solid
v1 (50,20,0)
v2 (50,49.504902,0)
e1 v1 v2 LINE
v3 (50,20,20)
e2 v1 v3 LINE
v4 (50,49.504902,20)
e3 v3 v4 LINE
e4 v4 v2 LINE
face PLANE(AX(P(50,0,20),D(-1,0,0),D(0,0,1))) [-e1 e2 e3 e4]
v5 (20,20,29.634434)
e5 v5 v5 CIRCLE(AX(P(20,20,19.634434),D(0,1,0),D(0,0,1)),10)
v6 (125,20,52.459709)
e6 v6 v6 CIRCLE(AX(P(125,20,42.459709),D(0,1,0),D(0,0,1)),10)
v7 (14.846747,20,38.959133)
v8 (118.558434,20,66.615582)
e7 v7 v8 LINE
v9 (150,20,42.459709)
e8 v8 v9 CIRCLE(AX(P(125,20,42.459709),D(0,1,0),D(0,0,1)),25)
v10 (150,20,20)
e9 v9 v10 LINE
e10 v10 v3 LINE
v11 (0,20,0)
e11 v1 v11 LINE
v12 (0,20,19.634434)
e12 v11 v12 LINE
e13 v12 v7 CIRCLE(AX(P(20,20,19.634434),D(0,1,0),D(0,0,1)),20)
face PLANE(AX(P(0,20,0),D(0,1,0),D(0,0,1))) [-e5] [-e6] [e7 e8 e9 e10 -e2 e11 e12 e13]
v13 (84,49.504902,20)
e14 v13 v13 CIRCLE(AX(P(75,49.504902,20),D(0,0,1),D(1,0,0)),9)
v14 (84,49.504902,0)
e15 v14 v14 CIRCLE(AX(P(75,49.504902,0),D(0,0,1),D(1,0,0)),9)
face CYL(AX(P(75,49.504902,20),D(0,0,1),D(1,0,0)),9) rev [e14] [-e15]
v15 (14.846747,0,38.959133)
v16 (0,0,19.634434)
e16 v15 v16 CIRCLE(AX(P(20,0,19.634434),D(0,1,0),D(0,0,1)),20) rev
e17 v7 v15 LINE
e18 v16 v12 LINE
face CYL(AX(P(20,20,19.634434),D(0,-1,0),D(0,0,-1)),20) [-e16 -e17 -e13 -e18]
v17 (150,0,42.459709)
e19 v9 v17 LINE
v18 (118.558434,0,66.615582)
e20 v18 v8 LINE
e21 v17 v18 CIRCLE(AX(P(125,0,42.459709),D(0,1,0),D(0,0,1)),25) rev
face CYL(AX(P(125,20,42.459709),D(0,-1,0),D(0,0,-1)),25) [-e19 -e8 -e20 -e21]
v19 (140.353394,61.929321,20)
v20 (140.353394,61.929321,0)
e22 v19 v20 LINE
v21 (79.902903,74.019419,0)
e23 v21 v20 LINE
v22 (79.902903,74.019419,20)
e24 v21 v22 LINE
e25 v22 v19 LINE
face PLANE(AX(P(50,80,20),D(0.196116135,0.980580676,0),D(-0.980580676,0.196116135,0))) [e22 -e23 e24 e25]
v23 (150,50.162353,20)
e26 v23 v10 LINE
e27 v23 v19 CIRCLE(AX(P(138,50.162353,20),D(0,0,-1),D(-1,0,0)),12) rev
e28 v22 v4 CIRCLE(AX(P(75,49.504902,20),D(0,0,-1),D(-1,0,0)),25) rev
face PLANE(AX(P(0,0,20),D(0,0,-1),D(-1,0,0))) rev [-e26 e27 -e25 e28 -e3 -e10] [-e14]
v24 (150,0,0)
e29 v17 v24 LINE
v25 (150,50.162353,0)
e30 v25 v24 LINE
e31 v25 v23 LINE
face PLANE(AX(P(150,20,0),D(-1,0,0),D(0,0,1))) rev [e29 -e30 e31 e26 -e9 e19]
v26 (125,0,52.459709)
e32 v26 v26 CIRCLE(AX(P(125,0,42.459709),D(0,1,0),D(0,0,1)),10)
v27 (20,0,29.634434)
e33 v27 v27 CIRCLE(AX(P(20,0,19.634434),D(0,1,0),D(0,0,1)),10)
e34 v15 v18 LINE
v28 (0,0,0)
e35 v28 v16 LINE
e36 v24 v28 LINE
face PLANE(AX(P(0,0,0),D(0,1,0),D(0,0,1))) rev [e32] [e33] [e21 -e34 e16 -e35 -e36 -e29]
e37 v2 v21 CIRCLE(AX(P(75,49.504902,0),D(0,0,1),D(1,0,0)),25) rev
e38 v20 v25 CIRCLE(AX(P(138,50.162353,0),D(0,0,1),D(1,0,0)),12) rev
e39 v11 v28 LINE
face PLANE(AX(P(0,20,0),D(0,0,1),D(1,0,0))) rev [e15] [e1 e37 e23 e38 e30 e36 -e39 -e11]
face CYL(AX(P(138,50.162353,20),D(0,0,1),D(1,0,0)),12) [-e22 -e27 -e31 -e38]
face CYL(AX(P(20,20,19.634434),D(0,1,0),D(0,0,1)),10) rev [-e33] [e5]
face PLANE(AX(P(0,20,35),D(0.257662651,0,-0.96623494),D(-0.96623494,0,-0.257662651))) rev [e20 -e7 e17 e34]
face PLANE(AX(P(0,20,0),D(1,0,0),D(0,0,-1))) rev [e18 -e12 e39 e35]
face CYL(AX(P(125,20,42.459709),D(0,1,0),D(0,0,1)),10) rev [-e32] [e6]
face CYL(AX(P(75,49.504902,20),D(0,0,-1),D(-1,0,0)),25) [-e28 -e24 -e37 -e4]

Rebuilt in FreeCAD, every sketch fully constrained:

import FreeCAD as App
import Part
import Sketcher

V = App.Vector
Q = App.Units.Quantity


def edges_at(feature, points):
    """Names of the edges that pass closest to the given points."""
    edges = feature.Shape.Edges
    near = lambda p: min(range(len(edges)), key=lambda i: edges[i].distToShape(Part.Vertex(*p))[0])
    return sorted({f"Edge{near(p) + 1}" for p in points})

doc = App.newDocument("Part")
body = doc.addObject("PartDesign::Body", "Body")

# Sketch on XZ plane
sketch1 = doc.addObject("Sketcher::SketchObject", "Sketch")
body.addObject(sketch1)
sketch1.AttachmentSupport = (doc.XZ_Plane, [""])
sketch1.MapMode = "FlatFace"
sketch1.addGeometry([
    Part.LineSegment(V(150, 0, 0), V(0, 0, 0)),
    Part.LineSegment(V(0, 0, 0), V(0, 35, 0)),
    Part.LineSegment(V(0, 35, 0), V(150, 75, 0)),
    Part.LineSegment(V(150, 75, 0), V(150, 0, 0)),
], False)
sketch1.addConstraint([
    Sketcher.Constraint("Coincident", 0, 2, 1, 1),
    Sketcher.Constraint("Coincident", 1, 2, 2, 1),
    Sketcher.Constraint("Coincident", 2, 2, 3, 1),
    Sketcher.Constraint("Coincident", 3, 2, 0, 1),
    Sketcher.Constraint("Horizontal", 0),
    Sketcher.Constraint("Vertical", 1),
    Sketcher.Constraint("Vertical", 3),
    Sketcher.Constraint("Coincident", 0, 2, -1, 1),
    Sketcher.Constraint("DistanceX", 0, 2, 0, 1, Q("150 mm")),
    Sketcher.Constraint("DistanceY", 1, 1, 1, 2, Q("35 mm")),
    Sketcher.Constraint("DistanceY", 3, 2, 3, 1, Q("75 mm")),
])
pad1 = doc.addObject("PartDesign::Pad", "Pad")
body.addObject(pad1)
pad1.Profile = sketch1
pad1.Length = 20
pad1.Reversed = True

# Sketch on XY plane
sketch2 = doc.addObject("Sketcher::SketchObject", "Sketch001")
body.addObject(sketch2)
sketch2.AttachmentSupport = (doc.XY_Plane, [""])
sketch2.MapMode = "FlatFace"
sketch2.addGeometry([
    Part.LineSegment(V(150, 0, 0), V(50, 0, 0)),
    Part.LineSegment(V(50, 0, 0), V(50, 80, 0)),
    Part.LineSegment(V(50, 80, 0), V(150, 60, 0)),
    Part.LineSegment(V(150, 60, 0), V(150, 0, 0)),
], False)
sketch2.addConstraint([
    Sketcher.Constraint("Coincident", 0, 2, 1, 1),
    Sketcher.Constraint("Coincident", 1, 2, 2, 1),
    Sketcher.Constraint("Coincident", 2, 2, 3, 1),
    Sketcher.Constraint("Coincident", 3, 2, 0, 1),
    Sketcher.Constraint("Horizontal", 0),
    Sketcher.Constraint("Vertical", 1),
    Sketcher.Constraint("Vertical", 3),
    Sketcher.Constraint("PointOnObject", 0, 2, -1),
    Sketcher.Constraint("DistanceX", 0, 2, 0, 1, Q("100 mm")),
    Sketcher.Constraint("DistanceY", 1, 1, 1, 2, Q("80 mm")),
    Sketcher.Constraint("DistanceY", 3, 2, 3, 1, Q("60 mm")),
    Sketcher.Constraint("DistanceX", -1, 1, 0, 2, Q("50 mm")),
])
pad2 = doc.addObject("PartDesign::Pad", "Pad001")
body.addObject(pad2)
pad2.Profile = sketch2
pad2.Length = 20
doc.recompute()

fillet = doc.addObject("PartDesign::Fillet", "Fillet")
body.addObject(fillet)
fillet.Base = (pad2, edges_at(pad2, [(0, 10, 35)]))
fillet.Radius = 20
doc.recompute()

fillet2 = doc.addObject("PartDesign::Fillet", "Fillet001")
body.addObject(fillet2)
fillet2.Base = (fillet, edges_at(fillet, [(50, 80, 10), (150, 10, 75)]))
fillet2.Radius = 25
doc.recompute()

fillet3 = doc.addObject("PartDesign::Fillet", "Fillet002")
body.addObject(fillet3)
fillet3.Base = (fillet2, edges_at(fillet2, [(150, 60, 10)]))
fillet3.Radius = 12

# Sketch on XZ plane
sketch3 = doc.addObject("Sketcher::SketchObject", "Sketch002")
body.addObject(sketch3)
sketch3.AttachmentSupport = (doc.XZ_Plane, [""])
sketch3.MapMode = "FlatFace"
sketch3.AttachmentOffset = App.Placement(V(0, 0, -20), App.Rotation())
sketch3.addGeometry([
    Part.Circle(V(20, 19.634434, 0), V(0, 0, 1), 10),
    Part.Circle(V(125, 42.459709, 0), V(0, 0, 1), 10),
], False)
sketch3.addConstraint([
    Sketcher.Constraint("Equal", 0, 1),
    Sketcher.Constraint("Diameter", 0, Q("20 mm")),
    Sketcher.Constraint("DistanceX", -1, 1, 0, 3, Q("20 mm")),
    Sketcher.Constraint("DistanceX", -1, 1, 1, 3, Q("125 mm")),
    Sketcher.Constraint("DistanceY", -1, 1, 1, 3, Q("42.459709 mm")),
    Sketcher.Constraint("DistanceY", -1, 1, 0, 3, Q("19.634434 mm")),
])
doc.recompute()
hole = doc.addObject("PartDesign::Hole", "Hole")
body.addObject(hole)
hole.Profile = sketch3
hole.ThreadType = "None"
hole.Diameter = 20
hole.DepthType = "ThroughAll"
hole.Reversed = True

# Sketch on XY plane
sketch4 = doc.addObject("Sketcher::SketchObject", "Sketch003")
body.addObject(sketch4)
sketch4.AttachmentSupport = (doc.XY_Plane, [""])
sketch4.MapMode = "FlatFace"
sketch4.AttachmentOffset = App.Placement(V(0, 0, 20), App.Rotation())
sketch4.addGeometry(Part.Circle(V(75, 49.504902, 0), V(0, 0, 1), 9), False)
sketch4.addConstraint([
    Sketcher.Constraint("Diameter", 0, Q("18 mm")),
    Sketcher.Constraint("DistanceX", -1, 1, 0, 3, Q("75 mm")),
    Sketcher.Constraint("DistanceY", -1, 1, 0, 3, Q("49.504902 mm")),
])
doc.recompute()
hole2 = doc.addObject("PartDesign::Hole", "Hole001")
body.addObject(hole2)
hole2.Profile = sketch4
hole2.ThreadType = "None"
hole2.Diameter = 18
hole2.DepthType = "ThroughAll"

doc.recompute()
